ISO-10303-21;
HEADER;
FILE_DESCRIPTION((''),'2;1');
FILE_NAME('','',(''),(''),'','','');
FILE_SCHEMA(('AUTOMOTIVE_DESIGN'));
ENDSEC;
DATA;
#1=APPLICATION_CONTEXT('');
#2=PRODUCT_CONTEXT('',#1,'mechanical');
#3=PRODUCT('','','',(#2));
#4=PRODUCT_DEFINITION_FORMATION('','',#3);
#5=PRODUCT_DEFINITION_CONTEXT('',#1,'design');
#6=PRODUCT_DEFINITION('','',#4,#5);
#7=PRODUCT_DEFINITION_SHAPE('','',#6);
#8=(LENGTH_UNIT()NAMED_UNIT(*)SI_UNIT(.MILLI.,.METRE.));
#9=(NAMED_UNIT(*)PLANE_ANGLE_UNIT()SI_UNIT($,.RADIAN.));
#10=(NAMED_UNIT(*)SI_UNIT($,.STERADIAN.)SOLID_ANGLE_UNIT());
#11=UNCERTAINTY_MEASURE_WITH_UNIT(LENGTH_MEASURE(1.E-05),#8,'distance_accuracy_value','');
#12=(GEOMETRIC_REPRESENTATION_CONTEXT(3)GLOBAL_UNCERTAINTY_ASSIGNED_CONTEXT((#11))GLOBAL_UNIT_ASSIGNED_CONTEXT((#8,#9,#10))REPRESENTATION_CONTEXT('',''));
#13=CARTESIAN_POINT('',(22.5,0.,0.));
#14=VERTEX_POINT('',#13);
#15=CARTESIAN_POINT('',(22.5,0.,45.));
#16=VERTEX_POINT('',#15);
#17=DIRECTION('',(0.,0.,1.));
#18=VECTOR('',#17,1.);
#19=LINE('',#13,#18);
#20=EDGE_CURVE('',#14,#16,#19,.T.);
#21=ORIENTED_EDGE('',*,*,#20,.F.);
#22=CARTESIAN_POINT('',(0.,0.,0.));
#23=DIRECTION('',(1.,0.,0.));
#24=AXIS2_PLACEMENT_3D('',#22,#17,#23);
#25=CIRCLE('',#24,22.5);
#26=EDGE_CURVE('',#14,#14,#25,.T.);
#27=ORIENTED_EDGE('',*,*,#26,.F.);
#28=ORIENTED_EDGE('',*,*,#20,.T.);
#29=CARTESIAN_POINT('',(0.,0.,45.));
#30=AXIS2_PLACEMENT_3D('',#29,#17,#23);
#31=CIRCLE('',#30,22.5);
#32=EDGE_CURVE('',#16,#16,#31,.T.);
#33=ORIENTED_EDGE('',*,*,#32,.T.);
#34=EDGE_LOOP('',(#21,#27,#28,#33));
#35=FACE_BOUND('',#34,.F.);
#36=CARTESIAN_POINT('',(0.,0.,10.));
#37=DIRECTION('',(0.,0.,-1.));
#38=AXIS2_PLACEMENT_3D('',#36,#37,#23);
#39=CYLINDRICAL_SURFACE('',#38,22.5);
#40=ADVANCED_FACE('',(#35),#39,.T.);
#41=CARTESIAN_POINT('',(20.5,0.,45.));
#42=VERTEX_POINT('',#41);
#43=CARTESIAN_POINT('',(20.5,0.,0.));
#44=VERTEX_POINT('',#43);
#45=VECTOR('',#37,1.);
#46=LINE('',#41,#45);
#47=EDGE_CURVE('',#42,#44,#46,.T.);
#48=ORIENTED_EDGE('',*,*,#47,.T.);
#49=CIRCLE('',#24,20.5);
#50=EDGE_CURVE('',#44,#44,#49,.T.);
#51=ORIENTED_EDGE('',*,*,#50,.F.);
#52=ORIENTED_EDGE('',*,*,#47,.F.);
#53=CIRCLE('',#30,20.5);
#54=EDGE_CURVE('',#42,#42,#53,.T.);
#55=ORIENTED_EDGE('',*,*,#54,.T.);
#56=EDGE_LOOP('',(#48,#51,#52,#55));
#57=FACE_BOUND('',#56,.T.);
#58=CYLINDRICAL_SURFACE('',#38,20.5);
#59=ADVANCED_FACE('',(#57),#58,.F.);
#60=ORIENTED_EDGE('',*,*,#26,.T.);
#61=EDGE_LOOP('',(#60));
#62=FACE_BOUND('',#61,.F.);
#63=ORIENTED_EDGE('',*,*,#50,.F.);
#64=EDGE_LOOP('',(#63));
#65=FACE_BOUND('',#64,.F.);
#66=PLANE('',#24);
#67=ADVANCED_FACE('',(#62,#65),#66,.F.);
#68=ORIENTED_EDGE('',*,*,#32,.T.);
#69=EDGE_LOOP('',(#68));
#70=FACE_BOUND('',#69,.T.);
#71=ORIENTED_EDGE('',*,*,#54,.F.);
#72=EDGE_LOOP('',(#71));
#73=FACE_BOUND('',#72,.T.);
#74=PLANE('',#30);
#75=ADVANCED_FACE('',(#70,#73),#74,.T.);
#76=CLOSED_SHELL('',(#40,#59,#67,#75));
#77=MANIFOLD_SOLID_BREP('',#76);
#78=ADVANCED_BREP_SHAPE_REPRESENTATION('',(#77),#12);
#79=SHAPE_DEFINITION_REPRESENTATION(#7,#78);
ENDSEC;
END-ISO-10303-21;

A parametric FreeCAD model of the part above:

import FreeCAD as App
import Part
import Sketcher
Q = App.Units.Quantity

doc = App.newDocument("Part")
params = doc.addObject("Spreadsheet::Sheet", "Params")
for row, (alias, value) in enumerate([
    ("sketch1_diameter", "45 mm"),
    ("sketch1_diameter2", "41 mm"),
    ("pad1_length", "10 mm"),
    ("sketch2_diameter", "45 mm"),
    ("sketch2_diameter2", "41 mm"),
    ("pad2_length", "35 mm"),
], start=1):
    params.set(f"A{row}", alias)
    params.set(f"B{row}", "=" + value)
    params.setAlias(f"B{row}", alias)

body = doc.addObject("PartDesign::Body", "Body")

sketch1 = doc.addObject("Sketcher::SketchObject", "Sketch")
body.addObject(sketch1)
sketch1.AttachmentSupport = (doc.XY_Plane, [""])
sketch1.MapMode = "FlatFace"
sketch1.addGeometry([
    Part.Circle(App.Vector(0, 0, 0), App.Vector(0, 0, 1), 22),
    Part.Circle(App.Vector(0, 0, 0), App.Vector(0, 0, 1), 20),
], False)
sketch1.addConstraint([
    Sketcher.Constraint("Coincident", 0, 3, -1, 1),
    Sketcher.Constraint("Coincident", 1, 3, -1, 1),
    Sketcher.Constraint("Diameter", 0, Q("45 mm")),
    Sketcher.Constraint("Diameter", 1, Q("41 mm")),
])
sketch1.setExpression("Constraints[2]", "Params.sketch1_diameter")
sketch1.setExpression("Constraints[3]", "Params.sketch1_diameter2")
pad1 = doc.addObject("PartDesign::Pad", "Pad")
body.addObject(pad1)
pad1.Profile = sketch1
pad1.setExpression("Length", "Params.pad1_length")

sketch2 = doc.addObject("Sketcher::SketchObject", "Sketch001")
body.addObject(sketch2)
sketch2.AttachmentSupport = (doc.XY_Plane, [""])
sketch2.MapMode = "FlatFace"
sketch2.AttachmentOffset = App.Placement(App.Vector(0, 0, 10), App.Rotation())
sketch2.addGeometry([
    Part.Circle(App.Vector(0, 0, 0), App.Vector(0, 0, 1), 22),
    Part.Circle(App.Vector(0, 0, 0), App.Vector(0, 0, 1), 20),
], False)
sketch2.addConstraint([
    Sketcher.Constraint("Coincident", 0, 3, -1, 1),
    Sketcher.Constraint("Coincident", 1, 3, -1, 1),
    Sketcher.Constraint("Diameter", 0, Q("45 mm")),
    Sketcher.Constraint("Diameter", 1, Q("41 mm")),
])
sketch2.setExpression("Constraints[2]", "Params.sketch2_diameter")
sketch2.setExpression("Constraints[3]", "Params.sketch2_diameter2")
pad2 = doc.addObject("PartDesign::Pad", "Pad001")
body.addObject(pad2)
pad2.Profile = sketch2
pad2.setExpression("Length", "Params.pad2_length")

doc.recompute()
